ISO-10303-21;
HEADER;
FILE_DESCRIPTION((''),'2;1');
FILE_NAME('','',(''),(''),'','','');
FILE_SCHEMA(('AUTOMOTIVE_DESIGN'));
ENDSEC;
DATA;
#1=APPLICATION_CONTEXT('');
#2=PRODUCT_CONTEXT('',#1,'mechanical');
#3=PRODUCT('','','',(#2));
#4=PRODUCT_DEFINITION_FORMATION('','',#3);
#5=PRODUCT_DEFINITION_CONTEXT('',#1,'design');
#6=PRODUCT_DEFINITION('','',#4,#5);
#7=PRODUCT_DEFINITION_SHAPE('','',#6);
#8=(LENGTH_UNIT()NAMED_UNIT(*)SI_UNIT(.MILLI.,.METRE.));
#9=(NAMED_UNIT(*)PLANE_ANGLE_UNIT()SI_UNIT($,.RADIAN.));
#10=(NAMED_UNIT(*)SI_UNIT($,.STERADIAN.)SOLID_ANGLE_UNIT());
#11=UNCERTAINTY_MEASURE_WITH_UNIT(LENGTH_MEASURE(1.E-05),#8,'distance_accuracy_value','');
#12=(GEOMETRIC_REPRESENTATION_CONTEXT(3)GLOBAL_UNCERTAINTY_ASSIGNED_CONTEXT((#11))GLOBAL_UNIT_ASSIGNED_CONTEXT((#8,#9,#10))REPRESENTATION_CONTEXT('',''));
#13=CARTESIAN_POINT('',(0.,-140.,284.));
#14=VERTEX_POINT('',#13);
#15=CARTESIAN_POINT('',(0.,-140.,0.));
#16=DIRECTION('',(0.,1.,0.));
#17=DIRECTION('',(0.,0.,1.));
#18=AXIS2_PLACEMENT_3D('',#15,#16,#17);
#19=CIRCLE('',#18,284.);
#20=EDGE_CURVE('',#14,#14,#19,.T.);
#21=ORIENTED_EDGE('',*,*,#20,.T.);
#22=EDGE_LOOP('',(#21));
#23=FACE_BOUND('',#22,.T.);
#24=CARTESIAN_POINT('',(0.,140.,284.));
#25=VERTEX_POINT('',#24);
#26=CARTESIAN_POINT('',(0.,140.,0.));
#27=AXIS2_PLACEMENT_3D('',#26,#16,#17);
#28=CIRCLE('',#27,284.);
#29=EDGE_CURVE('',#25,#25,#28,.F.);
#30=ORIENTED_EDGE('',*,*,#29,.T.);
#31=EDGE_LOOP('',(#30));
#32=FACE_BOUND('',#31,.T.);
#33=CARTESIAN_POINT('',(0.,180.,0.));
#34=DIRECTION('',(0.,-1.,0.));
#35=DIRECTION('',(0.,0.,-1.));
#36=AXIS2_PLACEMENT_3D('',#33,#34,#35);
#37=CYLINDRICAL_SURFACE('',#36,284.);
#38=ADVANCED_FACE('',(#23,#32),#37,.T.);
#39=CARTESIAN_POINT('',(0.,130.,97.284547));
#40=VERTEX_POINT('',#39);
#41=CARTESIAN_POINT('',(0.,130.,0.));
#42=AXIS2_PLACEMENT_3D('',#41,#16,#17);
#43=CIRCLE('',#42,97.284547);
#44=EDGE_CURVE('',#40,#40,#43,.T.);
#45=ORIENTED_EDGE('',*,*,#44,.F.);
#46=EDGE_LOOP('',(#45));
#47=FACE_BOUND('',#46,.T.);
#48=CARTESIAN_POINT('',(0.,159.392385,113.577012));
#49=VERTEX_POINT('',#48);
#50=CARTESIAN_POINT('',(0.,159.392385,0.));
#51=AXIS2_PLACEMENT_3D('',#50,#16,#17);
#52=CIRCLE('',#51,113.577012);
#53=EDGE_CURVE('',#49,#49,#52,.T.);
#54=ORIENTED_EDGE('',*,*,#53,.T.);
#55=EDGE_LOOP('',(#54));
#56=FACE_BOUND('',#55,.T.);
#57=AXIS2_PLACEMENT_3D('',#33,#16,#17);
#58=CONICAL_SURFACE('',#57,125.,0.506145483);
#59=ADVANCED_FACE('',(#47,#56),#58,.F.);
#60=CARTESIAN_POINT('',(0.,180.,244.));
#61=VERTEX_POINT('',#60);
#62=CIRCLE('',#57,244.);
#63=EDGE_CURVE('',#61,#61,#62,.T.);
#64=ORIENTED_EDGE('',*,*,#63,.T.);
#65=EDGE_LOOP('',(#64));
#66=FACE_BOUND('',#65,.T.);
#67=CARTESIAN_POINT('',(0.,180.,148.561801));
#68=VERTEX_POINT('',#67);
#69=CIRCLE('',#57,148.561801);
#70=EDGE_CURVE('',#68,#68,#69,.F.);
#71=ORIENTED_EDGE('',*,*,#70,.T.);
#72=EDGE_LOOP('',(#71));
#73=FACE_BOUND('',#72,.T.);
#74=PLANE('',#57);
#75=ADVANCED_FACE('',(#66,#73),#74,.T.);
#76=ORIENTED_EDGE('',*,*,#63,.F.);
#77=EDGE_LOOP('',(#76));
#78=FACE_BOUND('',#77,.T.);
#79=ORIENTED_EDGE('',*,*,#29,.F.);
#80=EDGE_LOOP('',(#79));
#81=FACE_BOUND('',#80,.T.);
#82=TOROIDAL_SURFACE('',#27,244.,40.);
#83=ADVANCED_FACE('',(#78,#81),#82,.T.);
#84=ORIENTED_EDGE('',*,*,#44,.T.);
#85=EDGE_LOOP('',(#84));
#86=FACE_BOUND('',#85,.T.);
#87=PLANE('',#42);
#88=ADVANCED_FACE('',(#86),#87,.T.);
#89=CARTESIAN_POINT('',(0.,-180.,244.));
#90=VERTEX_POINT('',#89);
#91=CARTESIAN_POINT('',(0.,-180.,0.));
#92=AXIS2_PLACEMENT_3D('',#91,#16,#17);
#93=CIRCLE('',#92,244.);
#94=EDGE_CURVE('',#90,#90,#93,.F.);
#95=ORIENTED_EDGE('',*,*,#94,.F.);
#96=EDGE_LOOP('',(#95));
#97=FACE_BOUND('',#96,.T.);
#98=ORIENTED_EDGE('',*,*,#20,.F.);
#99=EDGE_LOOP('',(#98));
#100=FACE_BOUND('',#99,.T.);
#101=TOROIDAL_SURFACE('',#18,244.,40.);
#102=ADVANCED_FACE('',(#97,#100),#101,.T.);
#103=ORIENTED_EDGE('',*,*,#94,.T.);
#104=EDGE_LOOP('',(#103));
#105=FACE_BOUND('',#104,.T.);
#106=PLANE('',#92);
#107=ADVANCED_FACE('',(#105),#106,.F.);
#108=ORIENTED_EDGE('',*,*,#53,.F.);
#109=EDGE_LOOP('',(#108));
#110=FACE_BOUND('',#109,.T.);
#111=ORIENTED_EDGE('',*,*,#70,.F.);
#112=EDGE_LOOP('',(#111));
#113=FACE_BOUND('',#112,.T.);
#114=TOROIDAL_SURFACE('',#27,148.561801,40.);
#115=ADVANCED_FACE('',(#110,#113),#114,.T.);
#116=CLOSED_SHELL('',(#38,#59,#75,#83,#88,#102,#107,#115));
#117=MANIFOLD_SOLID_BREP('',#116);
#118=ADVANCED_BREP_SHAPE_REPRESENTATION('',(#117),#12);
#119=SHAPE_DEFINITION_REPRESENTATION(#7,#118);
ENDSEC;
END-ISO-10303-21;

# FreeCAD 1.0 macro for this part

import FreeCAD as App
import Part
import Sketcher

V = App.Vector


def edges_at(feature, points):
    """Names of the edges that pass closest to the given points."""
    edges = feature.Shape.Edges
    near = lambda p: min(range(len(edges)), key=lambda i: edges[i].distToShape(Part.Vertex(*p))[0])
    return sorted({f"Edge{near(p) + 1}" for p in points})

doc = App.newDocument("Part")
body = doc.addObject("PartDesign::Body", "Body")

# Sketch on XZ plane
sketch1 = body.newObject("Sketcher::SketchObject", "Sketch")
sketch1.AttachmentSupport = (doc.getObject("XZ_Plane"), [""])
sketch1.MapMode = "FlatFace"
sketch1.addGeometry(Part.Circle(V(0, 0, 0), V(0, 0, 1), 284), False)
sketch1.addConstraint([
    Sketcher.Constraint("Coincident", 0, 3, -1, 1),
    Sketcher.Constraint("Diameter", 0, 568.0),
])
pad1 = body.newObject("PartDesign::Pad", "Pad")
pad1.Profile = sketch1
pad1.Length = 360
pad1.Midplane = True

# Sketch on XZ plane
sketch2 = body.newObject("Sketcher::SketchObject", "Sketch001")
sketch2.AttachmentSupport = (doc.getObject("XZ_Plane"), [""])
sketch2.MapMode = "FlatFace"
sketch2.AttachmentOffset = App.Placement(V(0, 0, -180), App.Rotation())
sketch2.addGeometry(Part.Circle(V(0, 0, 0), V(0, 0, 1), 125), False)
sketch2.addConstraint([
    Sketcher.Constraint("Coincident", 0, 3, -1, 1),
    Sketcher.Constraint("Diameter", 0, 250.0),
])
pocket1 = body.newObject("PartDesign::Pocket", "Pocket")
pocket1.Profile = sketch2
pocket1.Length = 50
pocket1.Reversed = True
pocket1.TaperAngle = -29
doc.recompute()

fillet = body.newObject("PartDesign::Fillet", "Fillet")
fillet.Base = (pocket1, edges_at(pocket1, [(-284, 180, 0)]))
fillet.Radius = 40
doc.recompute()

fillet2 = body.newObject("PartDesign::Fillet", "Fillet001")
fillet2.Base = (fillet, edges_at(fillet, [(-125, 180, 0)]))
fillet2.Radius = 40
doc.recompute()

fillet3 = body.newObject("PartDesign::Fillet", "Fillet002")
fillet3.Base = (fillet2, edges_at(fillet2, [(-284, -180, 0)]))
fillet3.Radius = 40

doc.recompute()
